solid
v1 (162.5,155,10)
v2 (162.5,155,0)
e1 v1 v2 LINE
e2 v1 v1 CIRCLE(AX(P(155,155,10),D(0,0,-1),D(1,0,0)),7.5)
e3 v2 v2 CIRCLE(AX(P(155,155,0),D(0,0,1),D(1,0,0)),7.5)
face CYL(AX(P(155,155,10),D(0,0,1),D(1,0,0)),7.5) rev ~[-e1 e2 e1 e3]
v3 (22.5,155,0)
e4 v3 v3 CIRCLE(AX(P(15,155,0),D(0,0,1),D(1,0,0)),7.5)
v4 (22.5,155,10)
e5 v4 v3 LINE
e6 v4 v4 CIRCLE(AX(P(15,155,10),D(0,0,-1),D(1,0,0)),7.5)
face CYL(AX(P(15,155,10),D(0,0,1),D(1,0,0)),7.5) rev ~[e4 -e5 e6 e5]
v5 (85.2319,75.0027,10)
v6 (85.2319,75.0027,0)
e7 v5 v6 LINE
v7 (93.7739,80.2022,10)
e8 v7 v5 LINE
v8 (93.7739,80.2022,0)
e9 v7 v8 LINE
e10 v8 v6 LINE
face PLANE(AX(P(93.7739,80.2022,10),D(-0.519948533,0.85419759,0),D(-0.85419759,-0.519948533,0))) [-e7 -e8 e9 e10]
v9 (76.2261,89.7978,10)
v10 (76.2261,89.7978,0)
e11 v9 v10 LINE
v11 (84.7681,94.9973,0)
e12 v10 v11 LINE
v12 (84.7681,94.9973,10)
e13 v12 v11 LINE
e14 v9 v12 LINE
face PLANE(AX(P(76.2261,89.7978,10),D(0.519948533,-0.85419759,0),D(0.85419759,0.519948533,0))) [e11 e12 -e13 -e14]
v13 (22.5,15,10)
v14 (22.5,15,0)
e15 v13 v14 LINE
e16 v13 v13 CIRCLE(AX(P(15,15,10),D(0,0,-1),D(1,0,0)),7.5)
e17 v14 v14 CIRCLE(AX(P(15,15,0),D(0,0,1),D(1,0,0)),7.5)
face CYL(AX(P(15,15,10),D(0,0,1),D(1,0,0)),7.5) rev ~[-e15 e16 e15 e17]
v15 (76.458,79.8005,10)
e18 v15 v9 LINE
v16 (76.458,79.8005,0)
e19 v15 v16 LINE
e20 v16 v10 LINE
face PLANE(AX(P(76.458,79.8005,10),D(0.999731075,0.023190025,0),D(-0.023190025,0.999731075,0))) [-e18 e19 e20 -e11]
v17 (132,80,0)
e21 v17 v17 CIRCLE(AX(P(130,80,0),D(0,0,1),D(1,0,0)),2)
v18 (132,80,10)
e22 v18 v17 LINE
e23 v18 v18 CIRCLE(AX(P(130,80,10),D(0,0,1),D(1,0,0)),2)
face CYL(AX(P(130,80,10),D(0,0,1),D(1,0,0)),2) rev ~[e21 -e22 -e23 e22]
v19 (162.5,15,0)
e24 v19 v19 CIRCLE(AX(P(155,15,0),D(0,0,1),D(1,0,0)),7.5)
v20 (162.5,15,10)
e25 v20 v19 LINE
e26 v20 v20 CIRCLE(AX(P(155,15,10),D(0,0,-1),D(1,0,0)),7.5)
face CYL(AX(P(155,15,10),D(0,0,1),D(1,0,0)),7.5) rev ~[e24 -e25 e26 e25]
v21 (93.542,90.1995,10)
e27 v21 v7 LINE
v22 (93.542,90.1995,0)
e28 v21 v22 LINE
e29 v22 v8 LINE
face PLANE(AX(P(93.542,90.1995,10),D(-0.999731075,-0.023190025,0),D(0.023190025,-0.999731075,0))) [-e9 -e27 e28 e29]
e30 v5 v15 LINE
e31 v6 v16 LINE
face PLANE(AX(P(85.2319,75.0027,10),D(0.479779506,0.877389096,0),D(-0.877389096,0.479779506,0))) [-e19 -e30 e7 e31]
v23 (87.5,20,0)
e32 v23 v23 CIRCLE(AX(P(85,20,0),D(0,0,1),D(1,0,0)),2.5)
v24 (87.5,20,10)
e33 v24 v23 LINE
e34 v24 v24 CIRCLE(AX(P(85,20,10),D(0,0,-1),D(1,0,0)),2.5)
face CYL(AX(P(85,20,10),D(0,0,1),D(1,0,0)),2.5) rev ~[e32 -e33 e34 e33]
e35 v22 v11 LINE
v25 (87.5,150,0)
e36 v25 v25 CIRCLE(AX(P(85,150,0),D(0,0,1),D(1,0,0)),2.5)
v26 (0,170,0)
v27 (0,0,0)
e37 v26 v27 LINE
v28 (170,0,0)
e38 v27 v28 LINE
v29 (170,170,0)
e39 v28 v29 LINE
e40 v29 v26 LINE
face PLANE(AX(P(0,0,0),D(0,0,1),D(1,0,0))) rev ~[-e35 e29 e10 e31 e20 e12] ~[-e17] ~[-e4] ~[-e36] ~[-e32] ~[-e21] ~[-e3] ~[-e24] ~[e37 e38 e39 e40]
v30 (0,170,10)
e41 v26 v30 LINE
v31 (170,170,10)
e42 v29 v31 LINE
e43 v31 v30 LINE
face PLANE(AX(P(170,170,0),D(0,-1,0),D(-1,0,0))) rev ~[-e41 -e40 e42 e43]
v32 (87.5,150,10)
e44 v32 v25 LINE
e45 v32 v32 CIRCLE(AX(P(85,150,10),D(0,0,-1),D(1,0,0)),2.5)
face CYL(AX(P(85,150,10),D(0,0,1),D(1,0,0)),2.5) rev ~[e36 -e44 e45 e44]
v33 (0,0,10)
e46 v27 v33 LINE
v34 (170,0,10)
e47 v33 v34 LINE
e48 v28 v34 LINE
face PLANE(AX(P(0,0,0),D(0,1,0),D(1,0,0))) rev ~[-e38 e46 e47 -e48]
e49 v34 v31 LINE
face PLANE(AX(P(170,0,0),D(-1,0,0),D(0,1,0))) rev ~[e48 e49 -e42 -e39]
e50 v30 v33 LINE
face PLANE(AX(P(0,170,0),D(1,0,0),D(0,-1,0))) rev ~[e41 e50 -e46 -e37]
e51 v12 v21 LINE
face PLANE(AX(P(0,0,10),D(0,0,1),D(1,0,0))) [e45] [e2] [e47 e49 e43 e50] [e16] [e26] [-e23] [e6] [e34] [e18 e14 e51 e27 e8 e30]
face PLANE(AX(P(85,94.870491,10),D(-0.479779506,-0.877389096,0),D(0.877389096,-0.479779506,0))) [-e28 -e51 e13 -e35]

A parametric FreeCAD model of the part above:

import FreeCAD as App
import Part
import Sketcher
from FreeCAD import Vector
Q = App.Units.Quantity

doc = App.newDocument("Part")
body = doc.addObject("PartDesign::Body", "Body")

sketch1 = body.newObject("Sketcher::SketchObject", "Sketch")
sketch1.AttachmentSupport = (doc.getObject("XY_Plane"), [""])
sketch1.MapMode = "FlatFace"
sketch1.addGeometry([
    Part.LineSegment(Vector(0, 170, 0), Vector(0, 0, 0)),
    Part.LineSegment(Vector(0, 0, 0), Vector(170, 0, 0)),
    Part.LineSegment(Vector(170, 0, 0), Vector(170, 170, 0)),
    Part.LineSegment(Vector(170, 170, 0), Vector(0, 170, 0)),
], False)
sketch1.addConstraint([
    Sketcher.Constraint("Coincident", 0, 2, 1, 1),
    Sketcher.Constraint("Coincident", 1, 2, 2, 1),
    Sketcher.Constraint("Coincident", 2, 2, 3, 1),
    Sketcher.Constraint("Coincident", 3, 2, 0, 1),
    Sketcher.Constraint("Vertical", 0),
    Sketcher.Constraint("Horizontal", 1),
    Sketcher.Constraint("Vertical", 2),
    Sketcher.Constraint("Horizontal", 3),
    Sketcher.Constraint("Coincident", 0, 2, -1, 1),
    Sketcher.Constraint("Equal", 3, 0),
    Sketcher.Constraint("DistanceX", 1, 1, 1, 2, Q("170 mm")),
])
pad1 = body.newObject("PartDesign::Pad", "Pad")
pad1.Profile = sketch1
pad1.Length = 10

sketch2 = body.newObject("Sketcher::SketchObject", "Sketch001")
sketch2.AttachmentSupport = (doc.getObject("XY_Plane"), [""])
sketch2.MapMode = "FlatFace"
sketch2.AttachmentOffset = App.Placement(Vector(0, 0, 10), App.Rotation())
sketch2.addGeometry([
    Part.Circle(Vector(15, 15, 0), Vector(0, 0, 1), 8),
    Part.Circle(Vector(155, 15, 0), Vector(0, 0, 1), 8),
    Part.Circle(Vector(15, 155, 0), Vector(0, 0, 1), 8),
    Part.Circle(Vector(155, 155, 0), Vector(0, 0, 1), 8),
], False)
sketch2.addConstraint([
    Sketcher.Constraint("Equal", 0, 1),
    Sketcher.Constraint("Equal", 1, 2),
    Sketcher.Constraint("Equal", 2, 3),
    Sketcher.Constraint("Horizontal", 0, 3, 1, 3),
    Sketcher.Constraint("Horizontal", 2, 3, 3, 3),
    Sketcher.Constraint("Vertical", 0, 3, 2, 3),
    Sketcher.Constraint("Vertical", 1, 3, 3, 3),
    Sketcher.Constraint("Diameter", 0, Q("15 mm")),
    Sketcher.Constraint("DistanceX", -1, 1, 0, 3, Q("15 mm")),
    Sketcher.Constraint("DistanceY", -1, 1, 0, 3, Q("15 mm")),
    Sketcher.Constraint("DistanceX", -1, 1, 1, 3, Q("155 mm")),
    Sketcher.Constraint("DistanceY", -1, 1, 2, 3, Q("155 mm")),
])
pocket1 = body.newObject("PartDesign::Pocket", "Pocket")
pocket1.Profile = sketch2
pocket1.Length = 10

sketch3 = body.newObject("Sketcher::SketchObject", "Sketch002")
sketch3.AttachmentSupport = (doc.getObject("XY_Plane"), [""])
sketch3.MapMode = "FlatFace"
sketch3.AttachmentOffset = App.Placement(Vector(0, 0, 10), App.Rotation())
sketch3.addGeometry([
    Part.LineSegment(Vector(94, 80, 0), Vector(94, 90, 0)),
    Part.LineSegment(Vector(94, 90, 0), Vector(85, 95, 0)),
    Part.LineSegment(Vector(85, 95, 0), Vector(76, 90, 0)),
    Part.LineSegment(Vector(76, 90, 0), Vector(76, 80, 0)),
    Part.LineSegment(Vector(76, 80, 0), Vector(85, 75, 0)),
    Part.LineSegment(Vector(85, 75, 0), Vector(94, 80, 0)),
], False)
sketch3.addConstraint([
    Sketcher.Constraint("Coincident", 0, 2, 1, 1),
    Sketcher.Constraint("Coincident", 1, 2, 2, 1),
    Sketcher.Constraint("Coincident", 2, 2, 3, 1),
    Sketcher.Constraint("Coincident", 3, 2, 4, 1),
    Sketcher.Constraint("Coincident", 4, 2, 5, 1),
    Sketcher.Constraint("Coincident", 5, 2, 0, 1),
    Sketcher.Constraint("Parallel", 0, 3),
    Sketcher.Constraint("Parallel", 1, 4),
    Sketcher.Constraint("Parallel", 2, 5),
    Sketcher.Constraint("Equal", 0, 1),
    Sketcher.Constraint("Equal", 1, 2),
    Sketcher.Constraint("Equal", 2, 3),
    Sketcher.Constraint("Distance", 0, Q("10 mm")),
    Sketcher.Constraint("Angle", 0, Q("91.3288 deg")),
    Sketcher.Constraint("Angle", 1, Q("151.329 deg")),
    Sketcher.Constraint("DistanceX", 3, 2, 1, 2, Q("8.31 mm")),
    Sketcher.Constraint("DistanceX", -1, 1, 0, 2, Q("93.542 mm")),
    Sketcher.Constraint("DistanceY", -1, 1, 0, 2, Q("90.1995 mm")),
])
pocket2 = body.newObject("PartDesign::Pocket", "Pocket001")
pocket2.Profile = sketch3
pocket2.Length = 10

sketch4 = body.newObject("Sketcher::SketchObject", "Sketch003")
sketch4.AttachmentSupport = (doc.getObject("XY_Plane"), [""])
sketch4.MapMode = "FlatFace"
sketch4.AttachmentOffset = App.Placement(Vector(0, 0, 10), App.Rotation())
sketch4.addGeometry([
    Part.Circle(Vector(85, 150, 0), Vector(0, 0, 1), 2.5),
    Part.Circle(Vector(85, 20, 0), Vector(0, 0, 1), 2.5),
], False)
sketch4.addConstraint([
    Sketcher.Constraint("Equal", 0, 1),
    Sketcher.Constraint("Vertical", 0, 3, 1, 3),
    Sketcher.Constraint("Diameter", 0, Q("5 mm")),
    Sketcher.Constraint("DistanceX", -1, 1, 0, 3, Q("85 mm")),
    Sketcher.Constraint("DistanceY", -1, 1, 1, 3, Q("20 mm")),
    Sketcher.Constraint("DistanceY", 1, 3, 0, 3, Q("130 mm")),
])
pocket3 = body.newObject("PartDesign::Pocket", "Pocket002")
pocket3.Profile = sketch4
pocket3.Length = 10

sketch5 = body.newObject("Sketcher::SketchObject", "Sketch004")
sketch5.AttachmentSupport = (doc.getObject("XY_Plane"), [""])
sketch5.MapMode = "FlatFace"
sketch5.AttachmentOffset = App.Placement(Vector(0, 0, 10), App.Rotation())
sketch5.addGeometry(Part.Circle(Vector(130, 80, 0), Vector(0, 0, 1), 2), False)
sketch5.addConstraint([
    Sketcher.Constraint("Diameter", 0, Q("4 mm")),
    Sketcher.Constraint("DistanceY", -1, 1, 0, 3, Q("80 mm")),
    Sketcher.Constraint("DistanceX", -1, 1, 0, 3, Q("130 mm")),
])
pocket4 = body.newObject("PartDesign::Pocket", "Pocket003")
pocket4.Profile = sketch5
pocket4.Length = 10

doc.recompute()
